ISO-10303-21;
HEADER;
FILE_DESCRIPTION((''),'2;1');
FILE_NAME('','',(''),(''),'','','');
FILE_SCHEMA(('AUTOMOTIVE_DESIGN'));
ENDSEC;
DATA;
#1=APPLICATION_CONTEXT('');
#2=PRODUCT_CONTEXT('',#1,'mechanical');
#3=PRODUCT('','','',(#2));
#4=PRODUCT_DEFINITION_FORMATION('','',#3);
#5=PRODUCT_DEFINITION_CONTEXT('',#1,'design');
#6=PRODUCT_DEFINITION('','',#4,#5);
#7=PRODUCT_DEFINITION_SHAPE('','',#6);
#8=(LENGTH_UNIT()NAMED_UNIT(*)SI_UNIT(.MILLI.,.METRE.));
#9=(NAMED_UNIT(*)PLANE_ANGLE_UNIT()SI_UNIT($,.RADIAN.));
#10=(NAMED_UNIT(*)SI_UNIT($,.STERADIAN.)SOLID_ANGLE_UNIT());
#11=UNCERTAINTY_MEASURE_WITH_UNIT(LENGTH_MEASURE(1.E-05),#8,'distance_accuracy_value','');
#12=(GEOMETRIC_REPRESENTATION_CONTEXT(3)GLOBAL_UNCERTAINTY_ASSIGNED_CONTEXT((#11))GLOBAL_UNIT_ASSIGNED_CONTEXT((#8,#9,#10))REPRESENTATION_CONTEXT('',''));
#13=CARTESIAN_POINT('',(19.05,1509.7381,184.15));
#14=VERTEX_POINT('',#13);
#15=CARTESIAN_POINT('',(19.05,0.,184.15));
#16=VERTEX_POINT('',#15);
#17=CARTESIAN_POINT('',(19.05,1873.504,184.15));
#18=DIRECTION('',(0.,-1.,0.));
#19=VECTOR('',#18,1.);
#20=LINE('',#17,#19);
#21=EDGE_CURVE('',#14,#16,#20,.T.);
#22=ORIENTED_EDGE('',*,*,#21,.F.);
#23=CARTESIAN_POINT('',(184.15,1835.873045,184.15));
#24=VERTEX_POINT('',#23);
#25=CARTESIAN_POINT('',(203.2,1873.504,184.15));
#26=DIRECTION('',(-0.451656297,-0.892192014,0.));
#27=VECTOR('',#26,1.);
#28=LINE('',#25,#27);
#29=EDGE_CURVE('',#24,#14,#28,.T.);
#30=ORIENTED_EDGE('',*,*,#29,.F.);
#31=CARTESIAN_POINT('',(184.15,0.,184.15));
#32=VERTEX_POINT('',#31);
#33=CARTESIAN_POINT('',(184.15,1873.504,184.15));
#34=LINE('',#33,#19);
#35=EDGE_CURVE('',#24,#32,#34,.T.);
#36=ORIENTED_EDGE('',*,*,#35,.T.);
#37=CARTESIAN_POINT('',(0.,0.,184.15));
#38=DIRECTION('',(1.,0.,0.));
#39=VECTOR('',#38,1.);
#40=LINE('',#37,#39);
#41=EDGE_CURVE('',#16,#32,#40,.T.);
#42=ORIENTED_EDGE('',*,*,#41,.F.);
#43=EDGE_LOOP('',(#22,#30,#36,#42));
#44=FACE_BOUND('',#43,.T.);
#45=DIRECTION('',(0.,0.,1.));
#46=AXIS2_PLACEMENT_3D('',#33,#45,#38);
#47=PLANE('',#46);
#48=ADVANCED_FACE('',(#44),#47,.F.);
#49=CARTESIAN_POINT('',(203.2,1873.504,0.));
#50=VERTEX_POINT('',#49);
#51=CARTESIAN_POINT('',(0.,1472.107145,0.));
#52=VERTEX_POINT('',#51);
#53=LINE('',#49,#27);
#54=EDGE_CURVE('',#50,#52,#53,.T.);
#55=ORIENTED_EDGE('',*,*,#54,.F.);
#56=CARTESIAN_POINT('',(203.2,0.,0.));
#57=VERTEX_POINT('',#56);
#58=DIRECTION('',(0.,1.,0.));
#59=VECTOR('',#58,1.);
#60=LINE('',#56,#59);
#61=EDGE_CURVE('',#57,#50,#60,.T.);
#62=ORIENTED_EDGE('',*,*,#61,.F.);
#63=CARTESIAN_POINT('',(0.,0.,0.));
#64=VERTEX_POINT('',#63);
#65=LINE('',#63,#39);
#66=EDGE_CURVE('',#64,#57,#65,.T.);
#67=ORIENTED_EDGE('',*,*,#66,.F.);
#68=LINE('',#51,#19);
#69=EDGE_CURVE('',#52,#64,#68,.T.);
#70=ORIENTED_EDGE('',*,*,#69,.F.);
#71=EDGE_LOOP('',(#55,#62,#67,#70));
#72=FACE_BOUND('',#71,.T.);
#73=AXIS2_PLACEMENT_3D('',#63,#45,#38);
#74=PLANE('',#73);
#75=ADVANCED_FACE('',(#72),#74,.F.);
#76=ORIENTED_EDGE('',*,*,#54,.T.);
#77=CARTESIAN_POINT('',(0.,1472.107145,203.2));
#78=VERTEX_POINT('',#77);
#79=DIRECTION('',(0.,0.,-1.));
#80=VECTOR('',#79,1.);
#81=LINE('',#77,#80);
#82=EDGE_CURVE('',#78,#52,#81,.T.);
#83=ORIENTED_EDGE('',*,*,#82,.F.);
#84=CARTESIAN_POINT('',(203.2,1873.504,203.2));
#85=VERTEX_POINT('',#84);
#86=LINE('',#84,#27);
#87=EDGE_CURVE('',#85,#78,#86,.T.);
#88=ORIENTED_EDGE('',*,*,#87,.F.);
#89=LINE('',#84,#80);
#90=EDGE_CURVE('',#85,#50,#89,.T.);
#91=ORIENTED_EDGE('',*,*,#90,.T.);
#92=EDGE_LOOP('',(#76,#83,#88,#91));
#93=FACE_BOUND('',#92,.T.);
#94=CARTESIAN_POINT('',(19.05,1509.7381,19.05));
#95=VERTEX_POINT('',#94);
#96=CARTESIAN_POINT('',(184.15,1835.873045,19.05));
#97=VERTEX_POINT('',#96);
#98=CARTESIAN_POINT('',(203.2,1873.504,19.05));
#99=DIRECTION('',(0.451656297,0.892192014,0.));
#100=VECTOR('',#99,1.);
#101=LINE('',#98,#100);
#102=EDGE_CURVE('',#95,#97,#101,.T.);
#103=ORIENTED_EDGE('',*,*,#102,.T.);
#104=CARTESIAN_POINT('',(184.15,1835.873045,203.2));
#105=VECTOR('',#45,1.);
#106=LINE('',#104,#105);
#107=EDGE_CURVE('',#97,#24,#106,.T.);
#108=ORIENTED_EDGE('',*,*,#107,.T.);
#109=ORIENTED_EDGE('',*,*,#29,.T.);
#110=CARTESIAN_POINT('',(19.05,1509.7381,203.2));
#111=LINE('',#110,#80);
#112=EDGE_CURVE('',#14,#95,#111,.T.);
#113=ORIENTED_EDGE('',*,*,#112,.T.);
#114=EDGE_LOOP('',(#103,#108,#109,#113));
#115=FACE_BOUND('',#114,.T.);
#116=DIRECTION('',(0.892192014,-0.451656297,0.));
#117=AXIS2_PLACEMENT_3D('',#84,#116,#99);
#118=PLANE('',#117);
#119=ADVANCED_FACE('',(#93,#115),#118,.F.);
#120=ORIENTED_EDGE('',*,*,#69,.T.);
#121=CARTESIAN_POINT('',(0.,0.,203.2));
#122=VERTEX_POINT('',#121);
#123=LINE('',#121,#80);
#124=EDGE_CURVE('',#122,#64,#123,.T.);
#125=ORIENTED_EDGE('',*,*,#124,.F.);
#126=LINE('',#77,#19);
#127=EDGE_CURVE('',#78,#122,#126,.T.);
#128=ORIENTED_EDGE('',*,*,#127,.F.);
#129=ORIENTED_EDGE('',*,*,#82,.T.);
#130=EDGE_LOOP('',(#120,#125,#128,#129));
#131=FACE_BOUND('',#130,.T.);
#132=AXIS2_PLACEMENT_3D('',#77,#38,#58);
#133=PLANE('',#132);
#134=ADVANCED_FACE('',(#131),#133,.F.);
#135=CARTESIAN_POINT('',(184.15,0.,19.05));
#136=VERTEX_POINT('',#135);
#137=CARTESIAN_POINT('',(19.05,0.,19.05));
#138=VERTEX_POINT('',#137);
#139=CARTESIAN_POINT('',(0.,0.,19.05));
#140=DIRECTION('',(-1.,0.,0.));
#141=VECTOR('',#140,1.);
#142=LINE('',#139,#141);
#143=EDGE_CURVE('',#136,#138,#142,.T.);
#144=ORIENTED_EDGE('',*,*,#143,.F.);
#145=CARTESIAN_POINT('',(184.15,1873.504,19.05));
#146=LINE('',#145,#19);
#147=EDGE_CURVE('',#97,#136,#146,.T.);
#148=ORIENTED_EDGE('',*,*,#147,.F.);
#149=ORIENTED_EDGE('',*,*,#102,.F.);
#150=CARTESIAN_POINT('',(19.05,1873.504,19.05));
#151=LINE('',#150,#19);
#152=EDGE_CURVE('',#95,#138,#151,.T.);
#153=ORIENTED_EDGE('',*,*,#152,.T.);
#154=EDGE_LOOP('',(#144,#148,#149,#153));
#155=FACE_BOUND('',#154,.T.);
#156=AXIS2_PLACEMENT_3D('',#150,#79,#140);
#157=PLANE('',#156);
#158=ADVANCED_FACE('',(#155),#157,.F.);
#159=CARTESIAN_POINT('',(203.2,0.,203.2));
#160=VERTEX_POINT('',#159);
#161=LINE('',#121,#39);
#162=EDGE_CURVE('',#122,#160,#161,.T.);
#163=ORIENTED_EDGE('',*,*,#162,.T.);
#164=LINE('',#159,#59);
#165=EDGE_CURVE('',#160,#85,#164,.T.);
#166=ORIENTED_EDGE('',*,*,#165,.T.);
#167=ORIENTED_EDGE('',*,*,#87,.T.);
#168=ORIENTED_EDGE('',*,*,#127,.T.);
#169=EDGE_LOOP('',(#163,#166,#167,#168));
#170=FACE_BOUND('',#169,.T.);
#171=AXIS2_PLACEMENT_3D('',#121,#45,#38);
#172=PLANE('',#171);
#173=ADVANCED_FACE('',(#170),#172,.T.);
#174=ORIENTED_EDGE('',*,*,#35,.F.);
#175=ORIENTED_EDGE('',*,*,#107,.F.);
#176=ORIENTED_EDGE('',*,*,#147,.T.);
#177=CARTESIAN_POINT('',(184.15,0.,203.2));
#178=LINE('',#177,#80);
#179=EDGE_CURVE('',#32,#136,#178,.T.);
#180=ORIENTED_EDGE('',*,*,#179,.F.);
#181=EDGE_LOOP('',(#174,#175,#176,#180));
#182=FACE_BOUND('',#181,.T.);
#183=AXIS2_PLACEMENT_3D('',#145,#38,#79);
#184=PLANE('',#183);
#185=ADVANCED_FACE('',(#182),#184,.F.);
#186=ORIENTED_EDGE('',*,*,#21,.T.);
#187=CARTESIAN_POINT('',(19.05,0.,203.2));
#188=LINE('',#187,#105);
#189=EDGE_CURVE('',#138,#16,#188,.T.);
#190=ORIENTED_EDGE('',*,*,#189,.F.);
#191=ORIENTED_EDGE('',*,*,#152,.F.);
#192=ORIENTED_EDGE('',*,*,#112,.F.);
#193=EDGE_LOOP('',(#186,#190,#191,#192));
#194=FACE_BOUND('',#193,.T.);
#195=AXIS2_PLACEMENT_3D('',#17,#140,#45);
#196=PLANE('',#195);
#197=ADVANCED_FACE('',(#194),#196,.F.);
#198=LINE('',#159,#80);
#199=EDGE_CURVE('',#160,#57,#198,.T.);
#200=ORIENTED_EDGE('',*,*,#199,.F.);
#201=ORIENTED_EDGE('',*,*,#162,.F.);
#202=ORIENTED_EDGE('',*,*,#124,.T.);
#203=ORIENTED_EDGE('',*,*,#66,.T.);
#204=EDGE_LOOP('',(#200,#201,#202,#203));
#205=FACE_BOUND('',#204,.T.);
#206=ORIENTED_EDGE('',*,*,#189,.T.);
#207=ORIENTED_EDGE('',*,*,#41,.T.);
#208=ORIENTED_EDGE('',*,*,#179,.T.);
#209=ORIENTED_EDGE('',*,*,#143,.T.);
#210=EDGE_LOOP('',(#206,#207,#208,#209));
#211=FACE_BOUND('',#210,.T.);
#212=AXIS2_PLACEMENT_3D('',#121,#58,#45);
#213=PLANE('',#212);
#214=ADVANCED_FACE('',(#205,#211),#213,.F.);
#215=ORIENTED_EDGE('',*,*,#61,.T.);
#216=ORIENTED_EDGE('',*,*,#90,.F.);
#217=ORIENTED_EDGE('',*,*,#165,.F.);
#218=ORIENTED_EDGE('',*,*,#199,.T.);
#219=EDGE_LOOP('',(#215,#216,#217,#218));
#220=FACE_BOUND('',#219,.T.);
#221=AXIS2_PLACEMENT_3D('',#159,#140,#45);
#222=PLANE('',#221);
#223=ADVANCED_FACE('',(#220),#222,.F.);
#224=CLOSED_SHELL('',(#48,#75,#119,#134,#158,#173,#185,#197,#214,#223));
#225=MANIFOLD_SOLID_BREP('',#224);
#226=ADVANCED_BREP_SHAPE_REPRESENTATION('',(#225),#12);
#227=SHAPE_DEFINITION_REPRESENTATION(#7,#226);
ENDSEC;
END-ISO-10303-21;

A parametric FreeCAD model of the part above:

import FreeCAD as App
import Part
import Sketcher

V = App.Vector
Q = App.Units.Quantity


def add_polygon(sketch, points):
    """Adds a closed chain of lines whose ends are joined by coincident constraints."""
    first, n = sketch.GeometryCount, len(points)
    for a, b in zip(points, points[1:] + points[:1]):
        sketch.addGeometry(Part.LineSegment(App.Vector(*a, 0), App.Vector(*b, 0)), False)
    for i in range(n):
        sketch.addConstraint(Sketcher.Constraint("Coincident", first + i, 2, first + (i + 1) % n, 1))

doc = App.newDocument("Part")
body = doc.addObject("PartDesign::Body", "Body")

# Sketch on XY plane
sketch1 = body.newObject("Sketcher::SketchObject", "Sketch")
sketch1.AttachmentSupport = (doc.getObject("XY_Plane"), [""])
sketch1.MapMode = "FlatFace"
add_polygon(sketch1, [(0, 0), (203, 0), (203, 1874), (0, 1472)])  # lines 0-3
sketch1.addConstraint([
    Sketcher.Constraint("Horizontal", 0),
    Sketcher.Constraint("Vertical", 1),
    Sketcher.Constraint("Vertical", 3),
    Sketcher.Constraint("Coincident", 3, 2, -1, 1),
    Sketcher.Constraint("DistanceX", 0, 1, 0, 2, Q("8 in")),
    Sketcher.Constraint("DistanceY", 1, 1, 1, 2, Q("73.76 in")),
    Sketcher.Constraint("Angle", 2, Q("-116.85 deg")),
])
pad1 = body.newObject("PartDesign::Pad", "Pad")
pad1.Profile = sketch1
pad1.Length = Q("8 in")

# Sketch on XZ plane
sketch2 = body.newObject("Sketcher::SketchObject", "Sketch001")
sketch2.AttachmentSupport = (doc.getObject("XZ_Plane"), [""])
sketch2.MapMode = "FlatFace"
add_polygon(sketch2, [(19, 184), (19, 19), (184, 19), (184, 184)])  # lines 0-3
sketch2.addConstraint([
    Sketcher.Constraint("Vertical", 0),
    Sketcher.Constraint("Horizontal", 1),
    Sketcher.Constraint("Vertical", 2),
    Sketcher.Constraint("Horizontal", 3),
    Sketcher.Constraint("Equal", 3, 0),
    Sketcher.Constraint("DistanceX", 1, 1, 1, 2, Q("6.5 in")),
    Sketcher.Constraint("DistanceX", -1, 1, 0, 2, Q("0.75 in")),
    Sketcher.Constraint("DistanceY", -1, 1, 0, 2, Q("0.75 in")),
])
pocket1 = body.newObject("PartDesign::Pocket", "Pocket")
pocket1.Profile = sketch2
pocket1.Type = "ThroughAll"
pocket1.Midplane = True

doc.recompute()
